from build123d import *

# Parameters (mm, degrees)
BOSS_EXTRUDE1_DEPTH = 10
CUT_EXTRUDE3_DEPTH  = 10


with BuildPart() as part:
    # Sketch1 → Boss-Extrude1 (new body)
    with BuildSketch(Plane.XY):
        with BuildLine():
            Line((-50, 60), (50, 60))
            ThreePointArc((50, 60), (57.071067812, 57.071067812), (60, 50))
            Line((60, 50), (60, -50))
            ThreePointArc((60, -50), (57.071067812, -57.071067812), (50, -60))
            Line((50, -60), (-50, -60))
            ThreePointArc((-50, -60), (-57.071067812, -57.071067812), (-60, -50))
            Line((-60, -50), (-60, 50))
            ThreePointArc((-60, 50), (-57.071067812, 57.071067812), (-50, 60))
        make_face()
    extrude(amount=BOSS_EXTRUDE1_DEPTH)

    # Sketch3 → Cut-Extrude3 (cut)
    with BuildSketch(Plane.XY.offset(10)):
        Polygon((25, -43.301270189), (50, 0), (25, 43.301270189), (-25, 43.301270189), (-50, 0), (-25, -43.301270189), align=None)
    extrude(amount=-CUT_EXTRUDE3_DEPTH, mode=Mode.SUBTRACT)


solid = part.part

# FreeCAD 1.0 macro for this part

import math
import FreeCAD as App
import Part
import Sketcher

V = App.Vector
Q = App.Units.Quantity

doc = App.newDocument("Part")
body = doc.addObject("PartDesign::Body", "Body")

# Sketch on XY plane
sketch1 = body.newObject("Sketcher::SketchObject", "Sketch")
sketch1.AttachmentSupport = (doc.getObject("XY_Plane"), [""])
sketch1.MapMode = "FlatFace"
sketch1.addGeometry([
    Part.LineSegment(V(50, 60, 0), V(-50, 60, 0)),  # 0
    Part.ArcOfCircle(Part.Circle(V(-50, 50, 0), V(0, 0, 1), 10), math.radians(90), math.radians(180)),  # 1
    Part.LineSegment(V(-60, 50, 0), V(-60, -50, 0)),  # 2
    Part.ArcOfCircle(Part.Circle(V(-50, -50, 0), V(0, 0, 1), 10), math.radians(180), math.radians(270)),  # 3
    Part.LineSegment(V(-50, -60, 0), V(50, -60, 0)),  # 4
    Part.ArcOfCircle(Part.Circle(V(50, -50, 0), V(0, 0, 1), 10), math.radians(-90), math.radians(0)),  # 5
    Part.LineSegment(V(60, -50, 0), V(60, 50, 0)),  # 6
    Part.ArcOfCircle(Part.Circle(V(50, 50, 0), V(0, 0, 1), 10), math.radians(0), math.radians(90)),  # 7
], False)
sketch1.addConstraint([
    Sketcher.Constraint("Tangent", 0, 2, 1, 1),
    Sketcher.Constraint("Tangent", 1, 2, 2, 1),
    Sketcher.Constraint("Tangent", 2, 2, 3, 1),
    Sketcher.Constraint("Tangent", 3, 2, 4, 1),
    Sketcher.Constraint("Tangent", 4, 2, 5, 1),
    Sketcher.Constraint("Tangent", 5, 2, 6, 1),
    Sketcher.Constraint("Tangent", 6, 2, 7, 1),
    Sketcher.Constraint("Tangent", 7, 2, 0, 1),
    Sketcher.Constraint("Horizontal", 0),
    Sketcher.Constraint("Vertical", 2),
    Sketcher.Constraint("Horizontal", 4),
    Sketcher.Constraint("Vertical", 6),
    Sketcher.Constraint("Equal", 1, 3),
    Sketcher.Constraint("Equal", 3, 5),
    Sketcher.Constraint("Equal", 5, 7),
    Sketcher.Constraint("Symmetric", 1, 3, 5, 3, -1, 1),
    Sketcher.Constraint("Equal", 4, 2),
    Sketcher.Constraint("Radius", 1, Q("10 mm")),
    Sketcher.Constraint("DistanceX", 0, 2, 0, 1, Q("100 mm")),
])
pad1 = body.newObject("PartDesign::Pad", "Pad")
pad1.Profile = sketch1
pad1.Length = 10

# Sketch on XY plane
sketch2 = body.newObject("Sketcher::SketchObject", "Sketch001")
sketch2.AttachmentSupport = (doc.getObject("XY_Plane"), [""])
sketch2.MapMode = "FlatFace"
sketch2.AttachmentOffset = App.Placement(V(0, 0, 10), App.Rotation())
sketch2.addGeometry([
    Part.LineSegment(V(25, -43.30127, 0), V(50, 0, 0)),  # 0
    Part.LineSegment(V(50, 0, 0), V(25, 43.30127, 0)),  # 1
    Part.LineSegment(V(25, 43.30127, 0), V(-25, 43.30127, 0)),  # 2
    Part.LineSegment(V(-25, 43.30127, 0), V(-50, 0, 0)),  # 3
    Part.LineSegment(V(-50, 0, 0), V(-25, -43.30127, 0)),  # 4
    Part.LineSegment(V(-25, -43.30127, 0), V(25, -43.30127, 0)),  # 5
], False)
sketch2.addConstraint([
    Sketcher.Constraint("Coincident", 0, 2, 1, 1),
    Sketcher.Constraint("Coincident", 1, 2, 2, 1),
    Sketcher.Constraint("Coincident", 2, 2, 3, 1),
    Sketcher.Constraint("Coincident", 3, 2, 4, 1),
    Sketcher.Constraint("Coincident", 4, 2, 5, 1),
    Sketcher.Constraint("Coincident", 5, 2, 0, 1),
    Sketcher.Constraint("Horizontal", 2),
    Sketcher.Constraint("Horizontal", 5),
    Sketcher.Constraint("Symmetric", 0, 2, 3, 2, -1, 1),
    Sketcher.Constraint("Symmetric", 1, 2, 4, 2, -1, 1),
    Sketcher.Constraint("PointOnObject", 0, 2, -1),
    Sketcher.Constraint("Parallel", 0, 3),
    Sketcher.Constraint("Vertical", 2, 2, 4, 2),
    Sketcher.Constraint("DistanceX", 2, 2, 2, 1, Q("50 mm")),
    Sketcher.Constraint("Angle", 0, Q("60 deg")),
    Sketcher.Constraint("Distance", 0, Q("50 mm")),
])
pocket1 = body.newObject("PartDesign::Pocket", "Pocket")
pocket1.Profile = sketch2
pocket1.Length = 10

doc.recompute()
